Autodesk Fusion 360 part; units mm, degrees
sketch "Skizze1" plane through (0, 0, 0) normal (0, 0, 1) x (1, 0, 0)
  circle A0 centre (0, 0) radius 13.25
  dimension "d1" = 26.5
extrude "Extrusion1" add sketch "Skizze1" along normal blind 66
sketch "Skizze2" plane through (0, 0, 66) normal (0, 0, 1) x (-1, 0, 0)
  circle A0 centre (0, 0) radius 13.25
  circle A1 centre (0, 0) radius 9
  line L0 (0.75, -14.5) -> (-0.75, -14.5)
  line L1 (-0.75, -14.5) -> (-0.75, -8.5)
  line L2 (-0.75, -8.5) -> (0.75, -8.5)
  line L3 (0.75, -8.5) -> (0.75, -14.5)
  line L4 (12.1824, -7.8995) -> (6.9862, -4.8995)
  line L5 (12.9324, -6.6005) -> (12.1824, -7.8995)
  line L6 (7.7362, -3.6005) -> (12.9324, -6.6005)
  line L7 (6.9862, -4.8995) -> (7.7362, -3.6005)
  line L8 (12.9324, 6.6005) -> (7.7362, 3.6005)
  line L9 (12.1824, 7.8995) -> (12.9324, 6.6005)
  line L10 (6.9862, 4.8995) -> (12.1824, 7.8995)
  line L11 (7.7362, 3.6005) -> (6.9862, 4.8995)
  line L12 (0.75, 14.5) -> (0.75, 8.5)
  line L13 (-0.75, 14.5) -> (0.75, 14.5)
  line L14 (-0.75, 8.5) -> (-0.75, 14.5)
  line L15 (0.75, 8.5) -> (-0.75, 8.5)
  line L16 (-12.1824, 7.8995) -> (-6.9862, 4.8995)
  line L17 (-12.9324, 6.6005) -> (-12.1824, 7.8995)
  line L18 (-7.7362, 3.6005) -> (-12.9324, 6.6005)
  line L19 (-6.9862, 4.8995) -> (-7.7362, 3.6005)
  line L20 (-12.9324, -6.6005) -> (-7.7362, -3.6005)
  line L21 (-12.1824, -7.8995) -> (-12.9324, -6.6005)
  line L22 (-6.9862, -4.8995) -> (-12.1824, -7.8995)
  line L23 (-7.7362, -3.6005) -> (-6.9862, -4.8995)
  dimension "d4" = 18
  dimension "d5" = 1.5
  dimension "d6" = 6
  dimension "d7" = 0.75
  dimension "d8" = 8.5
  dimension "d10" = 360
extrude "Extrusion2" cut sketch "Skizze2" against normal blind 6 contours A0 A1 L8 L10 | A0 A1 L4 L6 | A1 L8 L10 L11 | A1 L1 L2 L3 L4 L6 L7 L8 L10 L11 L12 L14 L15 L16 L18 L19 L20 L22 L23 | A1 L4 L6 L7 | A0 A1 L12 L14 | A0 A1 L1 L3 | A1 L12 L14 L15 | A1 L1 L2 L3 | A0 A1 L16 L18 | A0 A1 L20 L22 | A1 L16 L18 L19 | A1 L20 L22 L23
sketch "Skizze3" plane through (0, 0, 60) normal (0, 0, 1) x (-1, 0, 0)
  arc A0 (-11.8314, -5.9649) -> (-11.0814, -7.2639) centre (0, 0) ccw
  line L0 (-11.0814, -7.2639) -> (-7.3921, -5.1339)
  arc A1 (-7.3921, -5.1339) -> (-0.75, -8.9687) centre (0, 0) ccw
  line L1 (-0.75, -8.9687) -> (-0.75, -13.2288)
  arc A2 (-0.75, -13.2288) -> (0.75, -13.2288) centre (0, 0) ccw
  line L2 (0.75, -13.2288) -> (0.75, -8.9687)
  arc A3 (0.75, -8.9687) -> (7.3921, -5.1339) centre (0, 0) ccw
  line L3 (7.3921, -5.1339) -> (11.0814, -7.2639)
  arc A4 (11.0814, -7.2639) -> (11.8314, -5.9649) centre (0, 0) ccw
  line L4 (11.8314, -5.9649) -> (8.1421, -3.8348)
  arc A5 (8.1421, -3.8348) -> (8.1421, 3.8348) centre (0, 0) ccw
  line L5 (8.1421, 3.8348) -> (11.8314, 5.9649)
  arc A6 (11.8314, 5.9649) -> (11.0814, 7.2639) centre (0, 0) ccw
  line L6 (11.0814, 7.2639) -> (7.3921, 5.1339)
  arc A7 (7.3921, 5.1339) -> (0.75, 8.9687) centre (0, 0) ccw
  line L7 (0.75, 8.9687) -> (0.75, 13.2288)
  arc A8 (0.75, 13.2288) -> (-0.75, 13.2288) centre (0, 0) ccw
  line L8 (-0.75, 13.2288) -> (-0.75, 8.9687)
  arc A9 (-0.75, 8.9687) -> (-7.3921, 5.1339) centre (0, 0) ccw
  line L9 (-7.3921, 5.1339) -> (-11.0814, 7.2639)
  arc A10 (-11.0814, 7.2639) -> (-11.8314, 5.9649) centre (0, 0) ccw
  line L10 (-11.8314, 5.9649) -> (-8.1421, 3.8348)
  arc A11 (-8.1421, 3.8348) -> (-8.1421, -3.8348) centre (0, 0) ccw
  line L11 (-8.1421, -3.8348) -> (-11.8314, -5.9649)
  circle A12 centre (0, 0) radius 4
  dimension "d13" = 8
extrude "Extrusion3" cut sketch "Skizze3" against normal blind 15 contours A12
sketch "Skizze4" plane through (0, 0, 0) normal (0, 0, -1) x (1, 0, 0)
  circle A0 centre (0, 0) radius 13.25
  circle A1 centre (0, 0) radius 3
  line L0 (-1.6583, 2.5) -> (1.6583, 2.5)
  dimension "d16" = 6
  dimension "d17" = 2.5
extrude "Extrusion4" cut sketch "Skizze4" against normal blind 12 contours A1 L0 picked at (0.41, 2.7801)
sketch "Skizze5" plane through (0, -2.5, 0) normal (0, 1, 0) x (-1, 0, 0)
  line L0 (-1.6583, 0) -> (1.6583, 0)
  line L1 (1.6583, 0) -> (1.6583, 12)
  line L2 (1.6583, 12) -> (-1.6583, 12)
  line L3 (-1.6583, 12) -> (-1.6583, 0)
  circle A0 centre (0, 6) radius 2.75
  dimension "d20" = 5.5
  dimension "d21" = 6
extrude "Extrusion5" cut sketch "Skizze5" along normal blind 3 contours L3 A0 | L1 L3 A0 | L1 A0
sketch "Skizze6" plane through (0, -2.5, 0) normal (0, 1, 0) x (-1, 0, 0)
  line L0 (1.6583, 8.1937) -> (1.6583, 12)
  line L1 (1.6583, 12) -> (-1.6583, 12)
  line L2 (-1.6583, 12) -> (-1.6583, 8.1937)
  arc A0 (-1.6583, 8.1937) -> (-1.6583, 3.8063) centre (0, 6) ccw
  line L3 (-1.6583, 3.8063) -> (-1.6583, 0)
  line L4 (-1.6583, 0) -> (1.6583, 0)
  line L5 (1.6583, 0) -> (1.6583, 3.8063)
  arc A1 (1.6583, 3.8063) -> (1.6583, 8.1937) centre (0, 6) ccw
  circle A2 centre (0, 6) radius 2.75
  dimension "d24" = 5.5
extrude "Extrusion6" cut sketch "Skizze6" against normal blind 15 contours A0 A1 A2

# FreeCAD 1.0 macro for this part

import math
import FreeCAD as App
import Part
import Sketcher

V = App.Vector
Q = App.Units.Quantity

doc = App.newDocument("Part")
params = doc.addObject("Spreadsheet::Sheet", "Params")
for row, (alias, value) in enumerate([
    ("sketch1_diameter", "26.5 mm"),
    ("pad1_length", "66 mm"),
    ("sketch2_radius", "9 mm"),
    ("sketch2_radius2", "13.25 mm"),
    ("pocket1_length", "6 mm"),
    ("sketch3_diameter", "8 mm"),
    ("pocket2_length", "15 mm"),
    ("sketch4_radius", "3 mm"),
    ("pocket3_length", "12 mm"),
    ("sketch5_diameter", "5.5 mm"),
    ("pocket4_length", "3 mm"),
    ("sketch6_diameter", "5.5 mm"),
    ("pocket5_length", "15 mm"),
], start=1):
    params.set(f"A{row}", alias)
    params.set(f"B{row}", "=" + value)
    params.setAlias(f"B{row}", alias)

body = doc.addObject("PartDesign::Body", "Body")

sketch1 = doc.addObject("Sketcher::SketchObject", "Sketch")
body.addObject(sketch1)
sketch1.AttachmentSupport = (doc.XY_Plane, [""])
sketch1.MapMode = "FlatFace"
sketch1.addGeometry(Part.Circle(V(0, 0, 0), V(0, 0, 1), 13), False)
sketch1.addConstraint(Sketcher.Constraint("Coincident", 0, 3, -1, 1))
sketch1.addConstraint(Sketcher.Constraint("Diameter", 0, 26.5))
sketch1.setExpression("Constraints[1]", "Params.sketch1_diameter")
pad1 = doc.addObject("PartDesign::Pad", "Pad")
body.addObject(pad1)
pad1.Profile = sketch1
pad1.setExpression("Length", "Params.pad1_length")

sketch2 = doc.addObject("Sketcher::SketchObject", "Sketch001")
body.addObject(sketch2)
sketch2.AttachmentSupport = (doc.XY_Plane, [""])
sketch2.MapMode = "FlatFace"
sketch2.AttachmentOffset = App.Placement(V(0, 0, 66), App.Rotation())
sketch2.addGeometry(Part.LineSegment(V(-8.1, -3.8, 0), V(-11.8, -6, 0)), False)
sketch2.addGeometry(Part.ArcOfCircle(Part.Circle(V(0, 0, 0), V(0, 0, 1), 13.2), math.radians(-153.24), math.radians(-146.76)), False)
sketch2.addGeometry(Part.LineSegment(V(-11.1, -7.3, 0), V(-7.4, -5.1, 0)), False)
sketch2.addGeometry(Part.ArcOfCircle(Part.Circle(V(0, 0, 0), V(0, 0, 1), 9), math.radians(-145), math.radians(-95)), False)
sketch2.addGeometry(Part.LineSegment(V(-0.8, -9, 0), V(-0.8, -13.2, 0)), False)
sketch2.addGeometry(Part.ArcOfCircle(Part.Circle(V(0, 0, 0), V(0, 0, 1), 13.2), math.radians(-93.24), math.radians(-86.76)), False)
sketch2.addGeometry(Part.LineSegment(V(0.8, -13.2, 0), V(0.8, -9, 0)), False)
sketch2.addGeometry(Part.ArcOfCircle(Part.Circle(V(0, 0, 0), V(0, 0, 1), 9), math.radians(-85), math.radians(-35)), False)
sketch2.addGeometry(Part.LineSegment(V(7.4, -5.1, 0), V(11.1, -7.3, 0)), False)
sketch2.addGeometry(Part.ArcOfCircle(Part.Circle(V(0, 0, 0), V(0, 0, 1), 13.2), math.radians(-33.24), math.radians(-26.76)), False)
sketch2.addGeometry(Part.LineSegment(V(11.8, -6, 0), V(8.1, -3.8, 0)), False)
sketch2.addGeometry(Part.ArcOfCircle(Part.Circle(V(0, 0, 0), V(0, 0, 1), 9), math.radians(-25), math.radians(25)), False)
sketch2.addGeometry(Part.LineSegment(V(8.1, 3.8, 0), V(11.8, 6, 0)), False)
sketch2.addGeometry(Part.ArcOfCircle(Part.Circle(V(0, 0, 0), V(0, 0, 1), 13.2), math.radians(26.76), math.radians(33.24)), False)
sketch2.addGeometry(Part.LineSegment(V(11.1, 7.3, 0), V(7.4, 5.1, 0)), False)
sketch2.addGeometry(Part.ArcOfCircle(Part.Circle(V(0, 0, 0), V(0, 0, 1), 9), math.radians(35), math.radians(85)), False)
sketch2.addGeometry(Part.LineSegment(V(0.8, 9, 0), V(0.8, 13.2, 0)), False)
sketch2.addGeometry(Part.ArcOfCircle(Part.Circle(V(0, 0, 0), V(0, 0, 1), 13.2), math.radians(86.76), math.radians(93.24)), False)
sketch2.addGeometry(Part.LineSegment(V(-0.8, 13.2, 0), V(-0.8, 9, 0)), False)
sketch2.addGeometry(Part.ArcOfCircle(Part.Circle(V(0, 0, 0), V(0, 0, 1), 9), math.radians(95), math.radians(145)), False)
sketch2.addGeometry(Part.LineSegment(V(-7.4, 5.1, 0), V(-11.1, 7.3, 0)), False)
sketch2.addGeometry(Part.ArcOfCircle(Part.Circle(V(0, 0, 0), V(0, 0, 1), 13.2), math.radians(146.76), math.radians(153.24)), False)
sketch2.addGeometry(Part.LineSegment(V(-11.8, 6, 0), V(-8.1, 3.8, 0)), False)
sketch2.addGeometry(Part.ArcOfCircle(Part.Circle(V(0, 0, 0), V(0, 0, 1), 9), math.radians(155), math.radians(205)), False)
sketch2.addConstraint(Sketcher.Constraint("Coincident", 0, 2, 1, 1))
sketch2.addConstraint(Sketcher.Constraint("Coincident", 1, 2, 2, 1))
sketch2.addConstraint(Sketcher.Constraint("Coincident", 2, 2, 3, 1))
sketch2.addConstraint(Sketcher.Constraint("Coincident", 3, 2, 4, 1))
sketch2.addConstraint(Sketcher.Constraint("Coincident", 4, 2, 5, 1))
sketch2.addConstraint(Sketcher.Constraint("Coincident", 5, 2, 6, 1))
sketch2.addConstraint(Sketcher.Constraint("Coincident", 6, 2, 7, 1))
sketch2.addConstraint(Sketcher.Constraint("Coincident", 7, 2, 8, 1))
sketch2.addConstraint(Sketcher.Constraint("Coincident", 8, 2, 9, 1))
sketch2.addConstraint(Sketcher.Constraint("Coincident", 9, 2, 10, 1))
sketch2.addConstraint(Sketcher.Constraint("Coincident", 10, 2, 11, 1))
sketch2.addConstraint(Sketcher.Constraint("Coincident", 11, 2, 12, 1))
sketch2.addConstraint(Sketcher.Constraint("Coincident", 12, 2, 13, 1))
sketch2.addConstraint(Sketcher.Constraint("Coincident", 13, 2, 14, 1))
sketch2.addConstraint(Sketcher.Constraint("Coincident", 14, 2, 15, 1))
sketch2.addConstraint(Sketcher.Constraint("Coincident", 15, 2, 16, 1))
sketch2.addConstraint(Sketcher.Constraint("Coincident", 16, 2, 17, 1))
sketch2.addConstraint(Sketcher.Constraint("Coincident", 17, 2, 18, 1))
sketch2.addConstraint(Sketcher.Constraint("Coincident", 18, 2, 19, 1))
sketch2.addConstraint(Sketcher.Constraint("Coincident", 19, 2, 20, 1))
sketch2.addConstraint(Sketcher.Constraint("Coincident", 20, 2, 21, 1))
sketch2.addConstraint(Sketcher.Constraint("Coincident", 21, 2, 22, 1))
sketch2.addConstraint(Sketcher.Constraint("Coincident", 22, 2, 23, 1))
sketch2.addConstraint(Sketcher.Constraint("Coincident", 23, 2, 0, 1))
sketch2.addConstraint(Sketcher.Constraint("Vertical", 4))
sketch2.addConstraint(Sketcher.Constraint("Vertical", 6))
sketch2.addConstraint(Sketcher.Constraint("Vertical", 16))
sketch2.addConstraint(Sketcher.Constraint("Vertical", 18))
sketch2.addConstraint(Sketcher.Constraint("Coincident", 1, 3, -1, 1))
sketch2.addConstraint(Sketcher.Constraint("Coincident", 3, 3, -1, 1))
sketch2.addConstraint(Sketcher.Constraint("Coincident", 5, 3, -1, 1))
sketch2.addConstraint(Sketcher.Constraint("Coincident", 7, 3, -1, 1))
sketch2.addConstraint(Sketcher.Constraint("Coincident", 9, 3, -1, 1))
sketch2.addConstraint(Sketcher.Constraint("Coincident", 11, 3, -1, 1))
sketch2.addConstraint(Sketcher.Constraint("Coincident", 13, 3, -1, 1))
sketch2.addConstraint(Sketcher.Constraint("Coincident", 15, 3, -1, 1))
sketch2.addConstraint(Sketcher.Constraint("Coincident", 17, 3, -1, 1))
sketch2.addConstraint(Sketcher.Constraint("Coincident", 19, 3, -1, 1))
sketch2.addConstraint(Sketcher.Constraint("Coincident", 21, 3, -1, 1))
sketch2.addConstraint(Sketcher.Constraint("Coincident", 23, 3, -1, 1))
sketch2.addConstraint(Sketcher.Constraint("Equal", 1, 5))
sketch2.addConstraint(Sketcher.Constraint("Equal", 3, 7))
sketch2.addConstraint(Sketcher.Constraint("Equal", 5, 9))
sketch2.addConstraint(Sketcher.Constraint("Equal", 7, 11))
sketch2.addConstraint(Sketcher.Constraint("Equal", 9, 13))
sketch2.addConstraint(Sketcher.Constraint("Equal", 11, 15))
sketch2.addConstraint(Sketcher.Constraint("Equal", 13, 17))
sketch2.addConstraint(Sketcher.Constraint("Equal", 15, 19))
sketch2.addConstraint(Sketcher.Constraint("Equal", 17, 21))
sketch2.addConstraint(Sketcher.Constraint("Equal", 19, 23))
sketch2.addConstraint(Sketcher.Constraint("Parallel", 0, 2))
sketch2.addConstraint(Sketcher.Constraint("Parallel", 8, 10))
sketch2.addConstraint(Sketcher.Constraint("Parallel", 2, 12))
sketch2.addConstraint(Sketcher.Constraint("Parallel", 12, 14))
sketch2.addConstraint(Sketcher.Constraint("Parallel", 10, 20))
sketch2.addConstraint(Sketcher.Constraint("Parallel", 20, 22))
sketch2.addConstraint(Sketcher.Constraint("Horizontal", 4, 2, 5, 2))
sketch2.addConstraint(Sketcher.Constraint("Horizontal", 2, 2, 7, 2))
sketch2.addConstraint(Sketcher.Constraint("Horizontal", 1, 2, 8, 2))
sketch2.addConstraint(Sketcher.Constraint("Horizontal", 0, 2, 9, 2))
sketch2.addConstraint(Sketcher.Constraint("Horizontal", 16, 2, 17, 2))
sketch2.addConstraint(Sketcher.Constraint("Horizontal", 14, 2, 19, 2))
sketch2.addConstraint(Sketcher.Constraint("Horizontal", 12, 2, 21, 2))
sketch2.addConstraint(Sketcher.Constraint("Vertical", 10, 2, 11, 2))
sketch2.addConstraint(Sketcher.Constraint("Vertical", 8, 2, 13, 2))
sketch2.addConstraint(Sketcher.Constraint("Vertical", 6, 2, 15, 2))
sketch2.addConstraint(Sketcher.Constraint("Equal", 0, 2))
sketch2.addConstraint(Sketcher.Constraint("Radius", 3, 9.0))
sketch2.addConstraint(Sketcher.Constraint("DistanceX", 4, 2, 5, 2, 1.5))
sketch2.addConstraint(Sketcher.Constraint("Angle", 0, Q("-150.0002 deg")))
sketch2.addConstraint(Sketcher.Constraint("Radius", 1, 13.25))
sketch2.addConstraint(Sketcher.Constraint("DistanceX", 0, 2, 1, 2, 0.75))
sketch2.setExpression("Constraints[67]", "Params.sketch2_radius")
sketch2.setExpression("Constraints[70]", "Params.sketch2_radius2")
pocket1 = doc.addObject("PartDesign::Pocket", "Pocket")
body.addObject(pocket1)
pocket1.Profile = sketch2
pocket1.setExpression("Length", "Params.pocket1_length")

sketch3 = doc.addObject("Sketcher::SketchObject", "Sketch002")
body.addObject(sketch3)
sketch3.AttachmentSupport = (doc.XY_Plane, [""])
sketch3.MapMode = "FlatFace"
sketch3.AttachmentOffset = App.Placement(V(0, 0, 60), App.Rotation())
sketch3.addGeometry(Part.Circle(V(0, 0, 0), V(0, 0, 1), 4), False)
sketch3.addConstraint(Sketcher.Constraint("Coincident", 0, 3, -1, 1))
sketch3.addConstraint(Sketcher.Constraint("Diameter", 0, 8.0))
sketch3.setExpression("Constraints[1]", "Params.sketch3_diameter")
pocket2 = doc.addObject("PartDesign::Pocket", "Pocket001")
body.addObject(pocket2)
pocket2.Profile = sketch3
pocket2.setExpression("Length", "Params.pocket2_length")

sketch4 = doc.addObject("Sketcher::SketchObject", "Sketch003")
body.addObject(sketch4)
sketch4.AttachmentSupport = (doc.XY_Plane, [""])
sketch4.MapMode = "FlatFace"
sketch4.addGeometry(Part.LineSegment(V(-1.7, -2.5, 0), V(1.7, -2.5, 0)), False)
sketch4.addGeometry(Part.ArcOfCircle(Part.Circle(V(0, 0, 0), V(0, 0, 1), 3), math.radians(-124), math.radians(-56)), False)
sketch4.addConstraint(Sketcher.Constraint("Coincident", 0, 1, 1, 1))
sketch4.addConstraint(Sketcher.Constraint("Coincident", 1, 2, 0, 2))
sketch4.addConstraint(Sketcher.Constraint("Horizontal", 0))
sketch4.addConstraint(Sketcher.Constraint("Coincident", 1, 3, -1, 1))
sketch4.addConstraint(Sketcher.Constraint("Radius", 1, 3.0))
sketch4.addConstraint(Sketcher.Constraint("DistanceY", 0, 1, -1, 1, 2.5))
sketch4.setExpression("Constraints[4]", "Params.sketch4_radius")
pocket3 = doc.addObject("PartDesign::Pocket", "Pocket002")
body.addObject(pocket3)
pocket3.Profile = sketch4
pocket3.setExpression("Length", "Params.pocket3_length")
pocket3.Reversed = True

sketch5 = doc.addObject("Sketcher::SketchObject", "Sketch004")
body.addObject(sketch5)
sketch5.AttachmentSupport = (doc.XZ_Plane, [""])
sketch5.MapMode = "FlatFace"
sketch5.AttachmentOffset = App.Placement(V(0, 0, 2.5), App.Rotation())
sketch5.addGeometry(Part.Circle(V(0, 6, 0), V(0, 0, 1), 2.8), False)
sketch5.addConstraint(Sketcher.Constraint("PointOnObject", 0, 3, -2))
sketch5.addConstraint(Sketcher.Constraint("Diameter", 0, 5.5))
sketch5.addConstraint(Sketcher.Constraint("DistanceY", -1, 1, 0, 3, 6.0))
sketch5.setExpression("Constraints[1]", "Params.sketch5_diameter")
pocket4 = doc.addObject("PartDesign::Pocket", "Pocket003")
body.addObject(pocket4)
pocket4.Profile = sketch5
pocket4.setExpression("Length", "Params.pocket4_length")

sketch6 = doc.addObject("Sketcher::SketchObject", "Sketch005")
body.addObject(sketch6)
sketch6.AttachmentSupport = (doc.XZ_Plane, [""])
sketch6.MapMode = "FlatFace"
sketch6.AttachmentOffset = App.Placement(V(0, 0, 2.5), App.Rotation())
sketch6.addGeometry(Part.Circle(V(0, 6, 0), V(0, 0, 1), 2.8), False)
sketch6.addConstraint(Sketcher.Constraint("PointOnObject", 0, 3, -2))
sketch6.addConstraint(Sketcher.Constraint("Diameter", 0, 5.5))
sketch6.addConstraint(Sketcher.Constraint("DistanceY", -1, 1, 0, 3, 6.0))
sketch6.setExpression("Constraints[1]", "Params.sketch6_diameter")
pocket5 = doc.addObject("PartDesign::Pocket", "Pocket004")
body.addObject(pocket5)
pocket5.Profile = sketch6
pocket5.setExpression("Length", "Params.pocket5_length")
pocket5.Reversed = True

doc.recompute()
